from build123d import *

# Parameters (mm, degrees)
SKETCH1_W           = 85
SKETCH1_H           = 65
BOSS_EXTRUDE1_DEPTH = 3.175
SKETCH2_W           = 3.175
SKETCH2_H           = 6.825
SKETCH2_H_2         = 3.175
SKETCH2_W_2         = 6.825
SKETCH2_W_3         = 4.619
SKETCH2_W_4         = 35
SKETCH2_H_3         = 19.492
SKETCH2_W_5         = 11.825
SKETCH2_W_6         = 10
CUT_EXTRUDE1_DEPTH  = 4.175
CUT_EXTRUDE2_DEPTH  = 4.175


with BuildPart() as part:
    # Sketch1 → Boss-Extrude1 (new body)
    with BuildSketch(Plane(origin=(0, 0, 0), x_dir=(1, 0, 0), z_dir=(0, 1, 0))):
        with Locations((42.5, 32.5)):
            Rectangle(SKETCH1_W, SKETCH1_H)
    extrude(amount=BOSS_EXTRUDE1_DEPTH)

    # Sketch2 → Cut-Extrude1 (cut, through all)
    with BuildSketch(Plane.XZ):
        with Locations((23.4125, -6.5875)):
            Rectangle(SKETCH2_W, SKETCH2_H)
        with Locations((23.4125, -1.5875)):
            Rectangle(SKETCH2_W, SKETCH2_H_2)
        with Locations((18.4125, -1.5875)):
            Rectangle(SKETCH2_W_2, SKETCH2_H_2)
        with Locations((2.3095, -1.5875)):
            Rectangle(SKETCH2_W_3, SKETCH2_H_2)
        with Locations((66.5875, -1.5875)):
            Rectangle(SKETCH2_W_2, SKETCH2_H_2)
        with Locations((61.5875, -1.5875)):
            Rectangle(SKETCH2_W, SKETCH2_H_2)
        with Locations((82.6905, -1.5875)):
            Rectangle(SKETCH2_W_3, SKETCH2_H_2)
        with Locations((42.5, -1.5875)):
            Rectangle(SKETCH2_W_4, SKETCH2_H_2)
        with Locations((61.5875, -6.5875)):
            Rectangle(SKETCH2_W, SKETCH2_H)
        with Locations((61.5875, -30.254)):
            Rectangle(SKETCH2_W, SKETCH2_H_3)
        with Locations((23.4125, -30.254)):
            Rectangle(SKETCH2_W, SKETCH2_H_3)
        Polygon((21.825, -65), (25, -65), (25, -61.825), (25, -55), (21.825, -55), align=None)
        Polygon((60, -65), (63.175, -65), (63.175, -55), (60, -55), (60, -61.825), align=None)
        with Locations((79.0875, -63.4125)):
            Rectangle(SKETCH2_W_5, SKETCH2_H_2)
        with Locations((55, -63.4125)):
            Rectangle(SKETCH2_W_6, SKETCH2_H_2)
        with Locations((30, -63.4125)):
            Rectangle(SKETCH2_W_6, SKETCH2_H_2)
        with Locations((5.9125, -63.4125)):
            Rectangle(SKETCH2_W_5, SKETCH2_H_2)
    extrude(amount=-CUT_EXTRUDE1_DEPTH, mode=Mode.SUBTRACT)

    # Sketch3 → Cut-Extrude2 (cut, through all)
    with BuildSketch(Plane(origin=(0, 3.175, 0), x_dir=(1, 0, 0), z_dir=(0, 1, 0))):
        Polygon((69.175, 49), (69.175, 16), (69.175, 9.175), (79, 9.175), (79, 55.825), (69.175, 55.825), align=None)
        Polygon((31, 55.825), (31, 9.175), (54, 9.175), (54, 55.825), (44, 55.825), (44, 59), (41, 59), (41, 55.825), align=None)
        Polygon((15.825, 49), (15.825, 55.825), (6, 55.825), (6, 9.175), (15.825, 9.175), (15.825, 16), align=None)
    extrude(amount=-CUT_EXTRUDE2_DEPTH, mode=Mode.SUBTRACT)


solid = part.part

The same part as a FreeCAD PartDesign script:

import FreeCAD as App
import Part
import Sketcher
from FreeCAD import Vector

doc = App.newDocument("Part")
body = doc.addObject("PartDesign::Body", "Body")

# Sketch on XZ plane
sketch1 = doc.addObject("Sketcher::SketchObject", "Sketch")
body.addObject(sketch1)
sketch1.AttachmentSupport = (doc.XZ_Plane, [""])
sketch1.MapMode = "FlatFace"
sketch1.addGeometry(Part.LineSegment(Vector(0, -65, 0), Vector(0, 0, 0)), False)
sketch1.addGeometry(Part.LineSegment(Vector(0, 0, 0), Vector(85, 0, 0)), False)
sketch1.addGeometry(Part.LineSegment(Vector(85, 0, 0), Vector(85, -65, 0)), False)
sketch1.addGeometry(Part.LineSegment(Vector(85, -65, 0), Vector(0, -65, 0)), False)
sketch1.addConstraint(Sketcher.Constraint("Coincident", 0, 2, 1, 1))
sketch1.addConstraint(Sketcher.Constraint("Coincident", 1, 2, 2, 1))
sketch1.addConstraint(Sketcher.Constraint("Coincident", 2, 2, 3, 1))
sketch1.addConstraint(Sketcher.Constraint("Coincident", 3, 2, 0, 1))
sketch1.addConstraint(Sketcher.Constraint("Vertical", 0))
sketch1.addConstraint(Sketcher.Constraint("Horizontal", 1))
sketch1.addConstraint(Sketcher.Constraint("Vertical", 2))
sketch1.addConstraint(Sketcher.Constraint("Horizontal", 3))
sketch1.addConstraint(Sketcher.Constraint("Coincident", 0, 2, -1, 1))
sketch1.addConstraint(Sketcher.Constraint("DistanceX", 1, 1, 1, 2, 85.0))
sketch1.addConstraint(Sketcher.Constraint("DistanceY", 0, 1, 0, 2, 65.0))
pad1 = doc.addObject("PartDesign::Pad", "Pad")
body.addObject(pad1)
pad1.Profile = sketch1
pad1.Length = 3.175
pad1.Reversed = True

# Sketch on XZ plane
sketch2 = doc.addObject("Sketcher::SketchObject", "Sketch001")
body.addObject(sketch2)
sketch2.AttachmentSupport = (doc.XZ_Plane, [""])
sketch2.MapMode = "FlatFace"
sketch2.addGeometry(Part.LineSegment(Vector(21.8, -10, 0), Vector(25, -10, 0)), False)
sketch2.addGeometry(Part.LineSegment(Vector(25, -10, 0), Vector(25, -3.2, 0)), False)
sketch2.addGeometry(Part.LineSegment(Vector(25, -3.2, 0), Vector(60, -3.2, 0)), False)
sketch2.addGeometry(Part.LineSegment(Vector(60, -3.2, 0), Vector(60, -10, 0)), False)
sketch2.addGeometry(Part.LineSegment(Vector(60, -10, 0), Vector(63.2, -10, 0)), False)
sketch2.addGeometry(Part.LineSegment(Vector(63.2, -10, 0), Vector(63.2, -3.2, 0)), False)
sketch2.addGeometry(Part.LineSegment(Vector(63.2, -3.2, 0), Vector(70, -3.2, 0)), False)
sketch2.addGeometry(Part.LineSegment(Vector(70, -3.2, 0), Vector(70, 0, 0)), False)
sketch2.addGeometry(Part.LineSegment(Vector(70, 0, 0), Vector(15, 0, 0)), False)
sketch2.addGeometry(Part.LineSegment(Vector(15, 0, 0), Vector(15, -3.2, 0)), False)
sketch2.addGeometry(Part.LineSegment(Vector(15, -3.2, 0), Vector(21.8, -3.2, 0)), False)
sketch2.addGeometry(Part.LineSegment(Vector(21.8, -3.2, 0), Vector(21.8, -10, 0)), False)
sketch2.addGeometry(Part.LineSegment(Vector(0, 0, 0), Vector(0, -3.2, 0)), False)
sketch2.addGeometry(Part.LineSegment(Vector(0, -3.2, 0), Vector(4.6, -3.2, 0)), False)
sketch2.addGeometry(Part.LineSegment(Vector(4.6, -3.2, 0), Vector(4.6, 0, 0)), False)
sketch2.addGeometry(Part.LineSegment(Vector(4.6, 0, 0), Vector(0, 0, 0)), False)
sketch2.addGeometry(Part.LineSegment(Vector(80.4, 0, 0), Vector(80.4, -3.2, 0)), False)
sketch2.addGeometry(Part.LineSegment(Vector(80.4, -3.2, 0), Vector(85, -3.2, 0)), False)
sketch2.addGeometry(Part.LineSegment(Vector(85, -3.2, 0), Vector(85, 0, 0)), False)
sketch2.addGeometry(Part.LineSegment(Vector(85, 0, 0), Vector(80.4, 0, 0)), False)
sketch2.addGeometry(Part.LineSegment(Vector(60, -20.5, 0), Vector(60, -40, 0)), False)
sketch2.addGeometry(Part.LineSegment(Vector(60, -40, 0), Vector(63.2, -40, 0)), False)
sketch2.addGeometry(Part.LineSegment(Vector(63.2, -40, 0), Vector(63.2, -20.5, 0)), False)
sketch2.addGeometry(Part.LineSegment(Vector(63.2, -20.5, 0), Vector(60, -20.5, 0)), False)
sketch2.addGeometry(Part.LineSegment(Vector(21.8, -20.5, 0), Vector(21.8, -40, 0)), False)
sketch2.addGeometry(Part.LineSegment(Vector(21.8, -40, 0), Vector(25, -40, 0)), False)
sketch2.addGeometry(Part.LineSegment(Vector(25, -40, 0), Vector(25, -20.5, 0)), False)
sketch2.addGeometry(Part.LineSegment(Vector(25, -20.5, 0), Vector(21.8, -20.5, 0)), False)
sketch2.addGeometry(Part.LineSegment(Vector(21.8, -65, 0), Vector(35, -65, 0)), False)
sketch2.addGeometry(Part.LineSegment(Vector(35, -65, 0), Vector(35, -61.8, 0)), False)
sketch2.addGeometry(Part.LineSegment(Vector(35, -61.8, 0), Vector(25, -61.8, 0)), False)
sketch2.addGeometry(Part.LineSegment(Vector(25, -61.8, 0), Vector(25, -55, 0)), False)
sketch2.addGeometry(Part.LineSegment(Vector(25, -55, 0), Vector(21.8, -55, 0)), False)
sketch2.addGeometry(Part.LineSegment(Vector(21.8, -55, 0), Vector(21.8, -65, 0)), False)
sketch2.addGeometry(Part.LineSegment(Vector(63.2, -65, 0), Vector(63.2, -55, 0)), False)
sketch2.addGeometry(Part.LineSegment(Vector(63.2, -55, 0), Vector(60, -55, 0)), False)
sketch2.addGeometry(Part.LineSegment(Vector(60, -55, 0), Vector(60, -61.8, 0)), False)
sketch2.addGeometry(Part.LineSegment(Vector(60, -61.8, 0), Vector(50, -61.8, 0)), False)
sketch2.addGeometry(Part.LineSegment(Vector(50, -61.8, 0), Vector(50, -65, 0)), False)
sketch2.addGeometry(Part.LineSegment(Vector(50, -65, 0), Vector(63.2, -65, 0)), False)
sketch2.addGeometry(Part.LineSegment(Vector(73.2, -61.8, 0), Vector(73.2, -65, 0)), False)
sketch2.addGeometry(Part.LineSegment(Vector(73.2, -65, 0), Vector(85, -65, 0)), False)
sketch2.addGeometry(Part.LineSegment(Vector(85, -65, 0), Vector(85, -61.8, 0)), False)
sketch2.addGeometry(Part.LineSegment(Vector(85, -61.8, 0), Vector(73.2, -61.8, 0)), False)
sketch2.addGeometry(Part.LineSegment(Vector(0, -61.8, 0), Vector(0, -65, 0)), False)
sketch2.addGeometry(Part.LineSegment(Vector(0, -65, 0), Vector(11.8, -65, 0)), False)
sketch2.addGeometry(Part.LineSegment(Vector(11.8, -65, 0), Vector(11.8, -61.8, 0)), False)
sketch2.addGeometry(Part.LineSegment(Vector(11.8, -61.8, 0), Vector(0, -61.8, 0)), False)
sketch2.addConstraint(Sketcher.Constraint("Coincident", 0, 2, 1, 1))
sketch2.addConstraint(Sketcher.Constraint("Coincident", 1, 2, 2, 1))
sketch2.addConstraint(Sketcher.Constraint("Coincident", 2, 2, 3, 1))
sketch2.addConstraint(Sketcher.Constraint("Coincident", 3, 2, 4, 1))
sketch2.addConstraint(Sketcher.Constraint("Coincident", 4, 2, 5, 1))
sketch2.addConstraint(Sketcher.Constraint("Coincident", 5, 2, 6, 1))
sketch2.addConstraint(Sketcher.Constraint("Coincident", 6, 2, 7, 1))
sketch2.addConstraint(Sketcher.Constraint("Coincident", 7, 2, 8, 1))
sketch2.addConstraint(Sketcher.Constraint("Coincident", 8, 2, 9, 1))
sketch2.addConstraint(Sketcher.Constraint("Coincident", 9, 2, 10, 1))
sketch2.addConstraint(Sketcher.Constraint("Coincident", 10, 2, 11, 1))
sketch2.addConstraint(Sketcher.Constraint("Coincident", 11, 2, 0, 1))
sketch2.addConstraint(Sketcher.Constraint("Coincident", 12, 2, 13, 1))
sketch2.addConstraint(Sketcher.Constraint("Coincident", 13, 2, 14, 1))
sketch2.addConstraint(Sketcher.Constraint("Coincident", 14, 2, 15, 1))
sketch2.addConstraint(Sketcher.Constraint("Coincident", 15, 2, 12, 1))
sketch2.addConstraint(Sketcher.Constraint("Coincident", 16, 2, 17, 1))
sketch2.addConstraint(Sketcher.Constraint("Coincident", 17, 2, 18, 1))
sketch2.addConstraint(Sketcher.Constraint("Coincident", 18, 2, 19, 1))
sketch2.addConstraint(Sketcher.Constraint("Coincident", 19, 2, 16, 1))
sketch2.addConstraint(Sketcher.Constraint("Coincident", 20, 2, 21, 1))
sketch2.addConstraint(Sketcher.Constraint("Coincident", 21, 2, 22, 1))
sketch2.addConstraint(Sketcher.Constraint("Coincident", 22, 2, 23, 1))
sketch2.addConstraint(Sketcher.Constraint("Coincident", 23, 2, 20, 1))
sketch2.addConstraint(Sketcher.Constraint("Coincident", 24, 2, 25, 1))
sketch2.addConstraint(Sketcher.Constraint("Coincident", 25, 2, 26, 1))
sketch2.addConstraint(Sketcher.Constraint("Coincident", 26, 2, 27, 1))
sketch2.addConstraint(Sketcher.Constraint("Coincident", 27, 2, 24, 1))
sketch2.addConstraint(Sketcher.Constraint("Coincident", 28, 2, 29, 1))
sketch2.addConstraint(Sketcher.Constraint("Coincident", 29, 2, 30, 1))
sketch2.addConstraint(Sketcher.Constraint("Coincident", 30, 2, 31, 1))
sketch2.addConstraint(Sketcher.Constraint("Coincident", 31, 2, 32, 1))
sketch2.addConstraint(Sketcher.Constraint("Coincident", 32, 2, 33, 1))
sketch2.addConstraint(Sketcher.Constraint("Coincident", 33, 2, 28, 1))
sketch2.addConstraint(Sketcher.Constraint("Coincident", 34, 2, 35, 1))
sketch2.addConstraint(Sketcher.Constraint("Coincident", 35, 2, 36, 1))
sketch2.addConstraint(Sketcher.Constraint("Coincident", 36, 2, 37, 1))
sketch2.addConstraint(Sketcher.Constraint("Coincident", 37, 2, 38, 1))
sketch2.addConstraint(Sketcher.Constraint("Coincident", 38, 2, 39, 1))
sketch2.addConstraint(Sketcher.Constraint("Coincident", 39, 2, 34, 1))
sketch2.addConstraint(Sketcher.Constraint("Coincident", 40, 2, 41, 1))
sketch2.addConstraint(Sketcher.Constraint("Coincident", 41, 2, 42, 1))
sketch2.addConstraint(Sketcher.Constraint("Coincident", 42, 2, 43, 1))
sketch2.addConstraint(Sketcher.Constraint("Coincident", 43, 2, 40, 1))
sketch2.addConstraint(Sketcher.Constraint("Coincident", 44, 2, 45, 1))
sketch2.addConstraint(Sketcher.Constraint("Coincident", 45, 2, 46, 1))
sketch2.addConstraint(Sketcher.Constraint("Coincident", 46, 2, 47, 1))
sketch2.addConstraint(Sketcher.Constraint("Coincident", 47, 2, 44, 1))
sketch2.addConstraint(Sketcher.Constraint("Horizontal", 0))
sketch2.addConstraint(Sketcher.Constraint("Vertical", 1))
sketch2.addConstraint(Sketcher.Constraint("Horizontal", 2))
sketch2.addConstraint(Sketcher.Constraint("Vertical", 3))
sketch2.addConstraint(Sketcher.Constraint("Horizontal", 4))
sketch2.addConstraint(Sketcher.Constraint("Vertical", 5))
sketch2.addConstraint(Sketcher.Constraint("Horizontal", 6))
sketch2.addConstraint(Sketcher.Constraint("Vertical", 7))
sketch2.addConstraint(Sketcher.Constraint("Horizontal", 8))
sketch2.addConstraint(Sketcher.Constraint("Vertical", 9))
sketch2.addConstraint(Sketcher.Constraint("Horizontal", 10))
sketch2.addConstraint(Sketcher.Constraint("Vertical", 11))
sketch2.addConstraint(Sketcher.Constraint("Vertical", 12))
sketch2.addConstraint(Sketcher.Constraint("Horizontal", 13))
sketch2.addConstraint(Sketcher.Constraint("Vertical", 14))
sketch2.addConstraint(Sketcher.Constraint("Horizontal", 15))
sketch2.addConstraint(Sketcher.Constraint("Vertical", 16))
sketch2.addConstraint(Sketcher.Constraint("Horizontal", 17))
sketch2.addConstraint(Sketcher.Constraint("Vertical", 18))
sketch2.addConstraint(Sketcher.Constraint("Horizontal", 19))
sketch2.addConstraint(Sketcher.Constraint("Vertical", 20))
sketch2.addConstraint(Sketcher.Constraint("Horizontal", 21))
sketch2.addConstraint(Sketcher.Constraint("Vertical", 22))
sketch2.addConstraint(Sketcher.Constraint("Horizontal", 23))
sketch2.addConstraint(Sketcher.Constraint("Vertical", 24))
sketch2.addConstraint(Sketcher.Constraint("Horizontal", 25))
sketch2.addConstraint(Sketcher.Constraint("Vertical", 26))
sketch2.addConstraint(Sketcher.Constraint("Horizontal", 27))
sketch2.addConstraint(Sketcher.Constraint("Horizontal", 28))
sketch2.addConstraint(Sketcher.Constraint("Vertical", 29))
sketch2.addConstraint(Sketcher.Constraint("Horizontal", 30))
sketch2.addConstraint(Sketcher.Constraint("Vertical", 31))
sketch2.addConstraint(Sketcher.Constraint("Horizontal", 32))
sketch2.addConstraint(Sketcher.Constraint("Vertical", 33))
sketch2.addConstraint(Sketcher.Constraint("Vertical", 34))
sketch2.addConstraint(Sketcher.Constraint("Horizontal", 35))
sketch2.addConstraint(Sketcher.Constraint("Vertical", 36))
sketch2.addConstraint(Sketcher.Constraint("Horizontal", 37))
sketch2.addConstraint(Sketcher.Constraint("Vertical", 38))
sketch2.addConstraint(Sketcher.Constraint("Horizontal", 39))
sketch2.addConstraint(Sketcher.Constraint("Vertical", 40))
sketch2.addConstraint(Sketcher.Constraint("Horizontal", 41))
sketch2.addConstraint(Sketcher.Constraint("Vertical", 42))
sketch2.addConstraint(Sketcher.Constraint("Horizontal", 43))
sketch2.addConstraint(Sketcher.Constraint("Vertical", 44))
sketch2.addConstraint(Sketcher.Constraint("Horizontal", 45))
sketch2.addConstraint(Sketcher.Constraint("Vertical", 46))
sketch2.addConstraint(Sketcher.Constraint("Horizontal", 47))
sketch2.addConstraint(Sketcher.Constraint("Coincident", 15, 2, -1, 1))
sketch2.addConstraint(Sketcher.Constraint("PointOnObject", 7, 2, -1))
sketch2.addConstraint(Sketcher.Constraint("PointOnObject", 18, 2, -1))
sketch2.addConstraint(Sketcher.Constraint("PointOnObject", 44, 2, -2))
sketch2.addConstraint(Sketcher.Constraint("Horizontal", 0, 2, 3, 2))
sketch2.addConstraint(Sketcher.Constraint("Horizontal", 2, 2, 5, 2))
sketch2.addConstraint(Sketcher.Constraint("Horizontal", 6, 2, 9, 2))
sketch2.addConstraint(Sketcher.Constraint("Horizontal", 10, 2, 12, 2))
sketch2.addConstraint(Sketcher.Constraint("Horizontal", 13, 2, 16, 2))
sketch2.addConstraint(Sketcher.Constraint("Horizontal", 21, 2, 24, 2))
sketch2.addConstraint(Sketcher.Constraint("Horizontal", 23, 2, 26, 2))
sketch2.addConstraint(Sketcher.Constraint("Horizontal", 32, 2, 34, 2))
sketch2.addConstraint(Sketcher.Constraint("Horizontal", 30, 2, 36, 2))
sketch2.addConstraint(Sketcher.Constraint("Horizontal", 33, 2, 38, 2))
sketch2.addConstraint(Sketcher.Constraint("Horizontal", 39, 2, 40, 2))
sketch2.addConstraint(Sketcher.Constraint("Horizontal", 37, 2, 42, 2))
sketch2.addConstraint(Sketcher.Constraint("Horizontal", 41, 2, 44, 2))
sketch2.addConstraint(Sketcher.Constraint("Horizontal", 43, 2, 46, 2))
sketch2.addConstraint(Sketcher.Constraint("Vertical", 3, 2, 20, 2))
sketch2.addConstraint(Sketcher.Constraint("Vertical", 5, 2, 21, 2))
sketch2.addConstraint(Sketcher.Constraint("Vertical", 11, 2, 24, 2))
sketch2.addConstraint(Sketcher.Constraint("Vertical", 1, 2, 25, 2))
sketch2.addConstraint(Sketcher.Constraint("Vertical", 26, 2, 30, 2))
sketch2.addConstraint(Sketcher.Constraint("Vertical", 27, 2, 32, 2))
sketch2.addConstraint(Sketcher.Constraint("Vertical", 22, 2, 34, 2))
sketch2.addConstraint(Sketcher.Constraint("Vertical", 23, 2, 35, 2))
sketch2.addConstraint(Sketcher.Constraint("Vertical", 18, 2, 41, 2))
sketch2.addConstraint(Sketcher.Constraint("Equal", 0, 4))
sketch2.addConstraint(Sketcher.Constraint("Equal", 6, 10))
sketch2.addConstraint(Sketcher.Constraint("Equal", 15, 17))
sketch2.addConstraint(Sketcher.Constraint("Equal", 30, 37))
sketch2.addConstraint(Sketcher.Constraint("Equal", 43, 45))
sketch2.addConstraint(Sketcher.Constraint("Equal", 10, 1))
sketch2.addConstraint(Sketcher.Constraint("Equal", 35, 7))
sketch2.addConstraint(Sketcher.Constraint("Equal", 18, 29))
sketch2.addConstraint(Sketcher.Constraint("Equal", 11, 31))
sketch2.addConstraint(Sketcher.Constraint("Equal", 37, 33))
sketch2.addConstraint(Sketcher.Constraint("DistanceX", 2, 1, 2, 2, 35.0))
sketch2.addConstraint(Sketcher.Constraint("DistanceX", 8, 2, 8, 1, 55.0))
sketch2.addConstraint(Sketcher.Constraint("DistanceX", -1, 1, 0, 2, 25.0))
sketch2.addConstraint(Sketcher.Constraint("DistanceX", -1, 1, 17, 2, 85.0))
sketch2.addConstraint(Sketcher.Constraint("DistanceY", 20, 2, -1, 1, 40.0))
sketch2.addConstraint(Sketcher.Constraint("DistanceY", 28, 2, -1, 1, 65.0))
sketch2.addConstraint(Sketcher.Constraint("DistanceX", 39, 2, 40, 2, 10.0))
sketch2.addConstraint(Sketcher.Constraint("DistanceX", 0, 1, 0, 2, 3.175))
sketch2.addConstraint(Sketcher.Constraint("DistanceX", 13, 1, 13, 2, 4.619))
sketch2.addConstraint(Sketcher.Constraint("DistanceY", 20, 2, 20, 1, 19.492))
pocket1 = doc.addObject("PartDesign::Pocket", "Pocket")
body.addObject(pocket1)
pocket1.Profile = sketch2
pocket1.Type = "ThroughAll"

# Sketch on XZ plane
sketch3 = doc.addObject("Sketcher::SketchObject", "Sketch002")
body.addObject(sketch3)
sketch3.AttachmentSupport = (doc.XZ_Plane, [""])
sketch3.MapMode = "FlatFace"
sketch3.AttachmentOffset = App.Placement(Vector(0, 0, -3.175), App.Rotation())
sketch3.addGeometry(Part.LineSegment(Vector(69.2, -9.2, 0), Vector(79, -9.2, 0)), False)
sketch3.addGeometry(Part.LineSegment(Vector(79, -9.2, 0), Vector(79, -55.8, 0)), False)
sketch3.addGeometry(Part.LineSegment(Vector(79, -55.8, 0), Vector(69.2, -55.8, 0)), False)
sketch3.addGeometry(Part.LineSegment(Vector(69.2, -55.8, 0), Vector(69.2, -9.2, 0)), False)
sketch3.addGeometry(Part.LineSegment(Vector(31, -55.8, 0), Vector(31, -9.2, 0)), False)
sketch3.addGeometry(Part.LineSegment(Vector(31, -9.2, 0), Vector(54, -9.2, 0)), False)
sketch3.addGeometry(Part.LineSegment(Vector(54, -9.2, 0), Vector(54, -55.8, 0)), False)
sketch3.addGeometry(Part.LineSegment(Vector(54, -55.8, 0), Vector(44, -55.8, 0)), False)
sketch3.addGeometry(Part.LineSegment(Vector(44, -55.8, 0), Vector(44, -59, 0)), False)
sketch3.addGeometry(Part.LineSegment(Vector(44, -59, 0), Vector(41, -59, 0)), False)
sketch3.addGeometry(Part.LineSegment(Vector(41, -59, 0), Vector(41, -55.8, 0)), False)
sketch3.addGeometry(Part.LineSegment(Vector(41, -55.8, 0), Vector(31, -55.8, 0)), False)
sketch3.addGeometry(Part.LineSegment(Vector(15.8, -55.8, 0), Vector(6, -55.8, 0)), False)
sketch3.addGeometry(Part.LineSegment(Vector(6, -55.8, 0), Vector(6, -9.2, 0)), False)
sketch3.addGeometry(Part.LineSegment(Vector(6, -9.2, 0), Vector(15.8, -9.2, 0)), False)
sketch3.addGeometry(Part.LineSegment(Vector(15.8, -9.2, 0), Vector(15.8, -55.8, 0)), False)
sketch3.addConstraint(Sketcher.Constraint("Coincident", 0, 2, 1, 1))
sketch3.addConstraint(Sketcher.Constraint("Coincident", 1, 2, 2, 1))
sketch3.addConstraint(Sketcher.Constraint("Coincident", 2, 2, 3, 1))
sketch3.addConstraint(Sketcher.Constraint("Coincident", 3, 2, 0, 1))
sketch3.addConstraint(Sketcher.Constraint("Coincident", 4, 2, 5, 1))
sketch3.addConstraint(Sketcher.Constraint("Coincident", 5, 2, 6, 1))
sketch3.addConstraint(Sketcher.Constraint("Coincident", 6, 2, 7, 1))
sketch3.addConstraint(Sketcher.Constraint("Coincident", 7, 2, 8, 1))
sketch3.addConstraint(Sketcher.Constraint("Coincident", 8, 2, 9, 1))
sketch3.addConstraint(Sketcher.Constraint("Coincident", 9, 2, 10, 1))
sketch3.addConstraint(Sketcher.Constraint("Coincident", 10, 2, 11, 1))
sketch3.addConstraint(Sketcher.Constraint("Coincident", 11, 2, 4, 1))
sketch3.addConstraint(Sketcher.Constraint("Coincident", 12, 2, 13, 1))
sketch3.addConstraint(Sketcher.Constraint("Coincident", 13, 2, 14, 1))
sketch3.addConstraint(Sketcher.Constraint("Coincident", 14, 2, 15, 1))
sketch3.addConstraint(Sketcher.Constraint("Coincident", 15, 2, 12, 1))
sketch3.addConstraint(Sketcher.Constraint("Horizontal", 0))
sketch3.addConstraint(Sketcher.Constraint("Vertical", 1))
sketch3.addConstraint(Sketcher.Constraint("Horizontal", 2))
sketch3.addConstraint(Sketcher.Constraint("Vertical", 3))
sketch3.addConstraint(Sketcher.Constraint("Vertical", 4))
sketch3.addConstraint(Sketcher.Constraint("Horizontal", 5))
sketch3.addConstraint(Sketcher.Constraint("Vertical", 6))
sketch3.addConstraint(Sketcher.Constraint("Horizontal", 7))
sketch3.addConstraint(Sketcher.Constraint("Vertical", 8))
sketch3.addConstraint(Sketcher.Constraint("Horizontal", 9))
sketch3.addConstraint(Sketcher.Constraint("Vertical", 10))
sketch3.addConstraint(Sketcher.Constraint("Horizontal", 11))
sketch3.addConstraint(Sketcher.Constraint("Horizontal", 12))
sketch3.addConstraint(Sketcher.Constraint("Vertical", 13))
sketch3.addConstraint(Sketcher.Constraint("Horizontal", 14))
sketch3.addConstraint(Sketcher.Constraint("Vertical", 15))
sketch3.addConstraint(Sketcher.Constraint("Horizontal", 3, 2, 4, 2))
sketch3.addConstraint(Sketcher.Constraint("Horizontal", 2, 2, 6, 2))
sketch3.addConstraint(Sketcher.Constraint("Horizontal", 7, 2, 10, 2))
sketch3.addConstraint(Sketcher.Constraint("Horizontal", 11, 2, 12, 2))
sketch3.addConstraint(Sketcher.Constraint("Horizontal", 5, 2, 13, 2))
sketch3.addConstraint(Sketcher.Constraint("Equal", 7, 11))
sketch3.addConstraint(Sketcher.Constraint("Equal", 2, 12))
sketch3.addConstraint(Sketcher.Constraint("DistanceX", 5, 1, 5, 2, 23.0))
sketch3.addConstraint(Sketcher.Constraint("DistanceX", 7, 2, 7, 1, 10.0))
sketch3.addConstraint(Sketcher.Constraint("DistanceX", -1, 1, 0, 2, 79.0))
sketch3.addConstraint(Sketcher.Constraint("DistanceX", -1, 1, 4, 2, 31.0))
sketch3.addConstraint(Sketcher.Constraint("DistanceY", 8, 2, -1, 1, 59.0))
sketch3.addConstraint(Sketcher.Constraint("DistanceX", -1, 1, 12, 2, 6.0))
sketch3.addConstraint(Sketcher.Constraint("DistanceY", 1, 2, 1, 1, 46.65))
sketch3.addConstraint(Sketcher.Constraint("DistanceX", 0, 1, 0, 2, 9.825))
sketch3.addConstraint(Sketcher.Constraint("DistanceY", 8, 2, 8, 1, 3.175))
pocket2 = doc.addObject("PartDesign::Pocket", "Pocket001")
body.addObject(pocket2)
pocket2.Profile = sketch3
pocket2.Type = "ThroughAll"
pocket2.Reversed = True

doc.recompute()
